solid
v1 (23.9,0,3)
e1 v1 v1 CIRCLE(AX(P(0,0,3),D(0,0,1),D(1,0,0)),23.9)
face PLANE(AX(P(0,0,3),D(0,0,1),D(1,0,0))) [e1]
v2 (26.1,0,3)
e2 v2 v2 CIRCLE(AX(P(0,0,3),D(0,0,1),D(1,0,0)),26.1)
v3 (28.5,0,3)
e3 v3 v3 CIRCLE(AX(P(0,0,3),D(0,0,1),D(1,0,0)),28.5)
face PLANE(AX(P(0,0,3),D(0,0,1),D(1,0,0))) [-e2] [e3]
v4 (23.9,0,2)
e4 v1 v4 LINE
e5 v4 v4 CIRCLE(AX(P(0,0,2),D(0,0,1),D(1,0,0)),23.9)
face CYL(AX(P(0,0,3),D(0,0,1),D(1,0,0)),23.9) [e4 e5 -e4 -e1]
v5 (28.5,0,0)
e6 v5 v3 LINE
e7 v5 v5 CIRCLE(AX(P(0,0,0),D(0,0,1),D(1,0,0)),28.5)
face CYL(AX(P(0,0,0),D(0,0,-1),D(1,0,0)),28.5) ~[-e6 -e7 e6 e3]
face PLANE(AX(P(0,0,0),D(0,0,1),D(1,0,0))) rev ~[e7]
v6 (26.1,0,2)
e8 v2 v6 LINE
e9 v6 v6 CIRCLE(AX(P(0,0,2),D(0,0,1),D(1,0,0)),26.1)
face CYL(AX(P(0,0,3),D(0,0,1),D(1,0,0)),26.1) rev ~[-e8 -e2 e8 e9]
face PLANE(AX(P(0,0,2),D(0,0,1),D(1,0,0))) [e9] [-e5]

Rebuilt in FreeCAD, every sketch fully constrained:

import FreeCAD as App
import Part
import Sketcher
Q = App.Units.Quantity

doc = App.newDocument("Part")
body = doc.addObject("PartDesign::Body", "Body")

# Sketch on XY plane
sketch1 = body.newObject("Sketcher::SketchObject", "Sketch")
sketch1.AttachmentSupport = (doc.getObject("XY_Plane"), [""])
sketch1.MapMode = "FlatFace"
sketch1.addGeometry(Part.Circle(App.Vector(0, 0, 0), App.Vector(0, 0, 1), 28), False)
sketch1.addConstraint([
    Sketcher.Constraint("Coincident", 0, 3, -1, 1),
    Sketcher.Constraint("Diameter", 0, Q("57 mm")),
])
pad1 = body.newObject("PartDesign::Pad", "Pad")
pad1.Profile = sketch1
pad1.Length = 3

# Sketch on XY plane
sketch2 = body.newObject("Sketcher::SketchObject", "Sketch001")
sketch2.AttachmentSupport = (doc.getObject("XY_Plane"), [""])
sketch2.MapMode = "FlatFace"
sketch2.AttachmentOffset = App.Placement(App.Vector(0, 0, 3), App.Rotation())
sketch2.addGeometry([
    Part.Circle(App.Vector(0, 0, 0), App.Vector(0, 0, 1), 26),
    Part.Circle(App.Vector(0, 0, 0), App.Vector(0, 0, 1), 24),
], False)
sketch2.addConstraint([
    Sketcher.Constraint("Coincident", 0, 3, -1, 1),
    Sketcher.Constraint("Coincident", 1, 3, -1, 1),
    Sketcher.Constraint("Diameter", 0, Q("52.2 mm")),
    Sketcher.Constraint("Diameter", 1, Q("47.8 mm")),
])
pocket1 = body.newObject("PartDesign::Pocket", "Pocket")
pocket1.Profile = sketch2
pocket1.Length = 1

doc.recompute()
